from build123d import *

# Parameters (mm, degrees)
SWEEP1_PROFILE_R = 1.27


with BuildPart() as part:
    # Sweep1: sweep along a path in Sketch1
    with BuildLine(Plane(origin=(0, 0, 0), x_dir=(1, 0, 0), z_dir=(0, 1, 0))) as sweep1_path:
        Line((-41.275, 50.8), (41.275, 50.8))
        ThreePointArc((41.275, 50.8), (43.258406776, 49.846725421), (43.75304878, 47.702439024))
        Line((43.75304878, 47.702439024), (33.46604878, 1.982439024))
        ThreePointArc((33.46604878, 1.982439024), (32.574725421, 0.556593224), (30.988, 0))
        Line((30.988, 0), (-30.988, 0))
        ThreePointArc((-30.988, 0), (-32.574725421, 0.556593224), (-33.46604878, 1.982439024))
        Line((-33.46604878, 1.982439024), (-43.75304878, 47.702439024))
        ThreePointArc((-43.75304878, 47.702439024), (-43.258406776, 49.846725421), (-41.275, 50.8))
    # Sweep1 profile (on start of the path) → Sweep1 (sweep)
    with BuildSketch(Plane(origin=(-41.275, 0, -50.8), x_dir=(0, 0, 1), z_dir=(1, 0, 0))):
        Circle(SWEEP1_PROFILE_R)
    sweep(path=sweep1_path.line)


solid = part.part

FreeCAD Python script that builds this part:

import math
import FreeCAD as App
import Part
import Sketcher
Q = App.Units.Quantity

doc = App.newDocument("Part")
body = doc.addObject("PartDesign::Body", "Body")

# Sketch on YZ plane
sketch1 = doc.addObject("Sketcher::SketchObject", "Sketch")
body.addObject(sketch1)
sketch1.AttachmentSupport = (doc.YZ_Plane, [""])
sketch1.MapMode = "FlatFace"
sketch1.AttachmentOffset = App.Placement(App.Vector(0, 0, -1.625 * 25.4), App.Rotation())
sketch1.addGeometry(Part.Circle(App.Vector(0, -50.8, 0), App.Vector(0, 0, 1), 1.3), False)
sketch1.addConstraint([
    Sketcher.Constraint("PointOnObject", 0, 3, -2),
    Sketcher.Constraint("Diameter", 0, Q("0.1 in")),
    Sketcher.Constraint("DistanceY", 0, 3, -1, 1, Q("2 in")),
])

# Sketch on XZ plane
sketch2 = doc.addObject("Sketcher::SketchObject", "Sketch001")
body.addObject(sketch2)
sketch2.AttachmentSupport = (doc.XZ_Plane, [""])
sketch2.MapMode = "FlatFace"
sketch2.addGeometry([
    Part.LineSegment(App.Vector(-41.3, -50.8, 0), App.Vector(41.3, -50.8, 0)),  # 0
    Part.ArcOfCircle(Part.Circle(App.Vector(41.3, -48.3, 0), App.Vector(0, 0, 1), 2.5), math.radians(-90), math.radians(13)),  # 1
    Part.LineSegment(App.Vector(43.8, -47.7, 0), App.Vector(33.5, -2, 0)),  # 2
    Part.ArcOfCircle(Part.Circle(App.Vector(31, -2.5, 0), App.Vector(0, 0, 1), 2.5), math.radians(13), math.radians(90)),  # 3
    Part.LineSegment(App.Vector(31, 0, 0), App.Vector(-31, 0, 0)),  # 4
    Part.ArcOfCircle(Part.Circle(App.Vector(-31, -2.5, 0), App.Vector(0, 0, 1), 2.5), math.radians(90), math.radians(167)),  # 5
    Part.LineSegment(App.Vector(-33.5, -2, 0), App.Vector(-43.8, -47.7, 0)),  # 6
    Part.ArcOfCircle(Part.Circle(App.Vector(-41.3, -48.3, 0), App.Vector(0, 0, 1), 2.5), math.radians(167), math.radians(270)),  # 7
], False)
sketch2.addConstraint([
    Sketcher.Constraint("Tangent", 0, 2, 1, 1),
    Sketcher.Constraint("Tangent", 1, 2, 2, 1),
    Sketcher.Constraint("Tangent", 2, 2, 3, 1),
    Sketcher.Constraint("Tangent", 3, 2, 4, 1),
    Sketcher.Constraint("Tangent", 4, 2, 5, 1),
    Sketcher.Constraint("Tangent", 5, 2, 6, 1),
    Sketcher.Constraint("Tangent", 6, 2, 7, 1),
    Sketcher.Constraint("Tangent", 7, 2, 0, 1),
    Sketcher.Constraint("Horizontal", 0),
    Sketcher.Constraint("Horizontal", 4),
    Sketcher.Constraint("Equal", 1, 3),
    Sketcher.Constraint("Equal", 3, 5),
    Sketcher.Constraint("Equal", 5, 7),
    Sketcher.Constraint("Symmetric", 3, 2, 4, 2, -1, 1),
    Sketcher.Constraint("Horizontal", 2, 2, 5, 2),
    Sketcher.Constraint("Radius", 1, Q("0.1 in")),
    Sketcher.Constraint("DistanceY", 0, 2, -1, 1, Q("2 in")),
    Sketcher.Constraint("DistanceX", 0, 1, 0, 2, Q("3.25 in")),
    Sketcher.Constraint("DistanceX", 4, 2, 4, 1, Q("2.44 in")),
])
doc.recompute()

additivepipe = doc.addObject("PartDesign::AdditivePipe", "AdditivePipe")
body.addObject(additivepipe)
additivepipe.Profile = sketch1
additivepipe.Spine = (sketch2, ["Edge1", "Edge2", "Edge3", "Edge4", "Edge5", "Edge6", "Edge7", "Edge8"])

doc.recompute()
